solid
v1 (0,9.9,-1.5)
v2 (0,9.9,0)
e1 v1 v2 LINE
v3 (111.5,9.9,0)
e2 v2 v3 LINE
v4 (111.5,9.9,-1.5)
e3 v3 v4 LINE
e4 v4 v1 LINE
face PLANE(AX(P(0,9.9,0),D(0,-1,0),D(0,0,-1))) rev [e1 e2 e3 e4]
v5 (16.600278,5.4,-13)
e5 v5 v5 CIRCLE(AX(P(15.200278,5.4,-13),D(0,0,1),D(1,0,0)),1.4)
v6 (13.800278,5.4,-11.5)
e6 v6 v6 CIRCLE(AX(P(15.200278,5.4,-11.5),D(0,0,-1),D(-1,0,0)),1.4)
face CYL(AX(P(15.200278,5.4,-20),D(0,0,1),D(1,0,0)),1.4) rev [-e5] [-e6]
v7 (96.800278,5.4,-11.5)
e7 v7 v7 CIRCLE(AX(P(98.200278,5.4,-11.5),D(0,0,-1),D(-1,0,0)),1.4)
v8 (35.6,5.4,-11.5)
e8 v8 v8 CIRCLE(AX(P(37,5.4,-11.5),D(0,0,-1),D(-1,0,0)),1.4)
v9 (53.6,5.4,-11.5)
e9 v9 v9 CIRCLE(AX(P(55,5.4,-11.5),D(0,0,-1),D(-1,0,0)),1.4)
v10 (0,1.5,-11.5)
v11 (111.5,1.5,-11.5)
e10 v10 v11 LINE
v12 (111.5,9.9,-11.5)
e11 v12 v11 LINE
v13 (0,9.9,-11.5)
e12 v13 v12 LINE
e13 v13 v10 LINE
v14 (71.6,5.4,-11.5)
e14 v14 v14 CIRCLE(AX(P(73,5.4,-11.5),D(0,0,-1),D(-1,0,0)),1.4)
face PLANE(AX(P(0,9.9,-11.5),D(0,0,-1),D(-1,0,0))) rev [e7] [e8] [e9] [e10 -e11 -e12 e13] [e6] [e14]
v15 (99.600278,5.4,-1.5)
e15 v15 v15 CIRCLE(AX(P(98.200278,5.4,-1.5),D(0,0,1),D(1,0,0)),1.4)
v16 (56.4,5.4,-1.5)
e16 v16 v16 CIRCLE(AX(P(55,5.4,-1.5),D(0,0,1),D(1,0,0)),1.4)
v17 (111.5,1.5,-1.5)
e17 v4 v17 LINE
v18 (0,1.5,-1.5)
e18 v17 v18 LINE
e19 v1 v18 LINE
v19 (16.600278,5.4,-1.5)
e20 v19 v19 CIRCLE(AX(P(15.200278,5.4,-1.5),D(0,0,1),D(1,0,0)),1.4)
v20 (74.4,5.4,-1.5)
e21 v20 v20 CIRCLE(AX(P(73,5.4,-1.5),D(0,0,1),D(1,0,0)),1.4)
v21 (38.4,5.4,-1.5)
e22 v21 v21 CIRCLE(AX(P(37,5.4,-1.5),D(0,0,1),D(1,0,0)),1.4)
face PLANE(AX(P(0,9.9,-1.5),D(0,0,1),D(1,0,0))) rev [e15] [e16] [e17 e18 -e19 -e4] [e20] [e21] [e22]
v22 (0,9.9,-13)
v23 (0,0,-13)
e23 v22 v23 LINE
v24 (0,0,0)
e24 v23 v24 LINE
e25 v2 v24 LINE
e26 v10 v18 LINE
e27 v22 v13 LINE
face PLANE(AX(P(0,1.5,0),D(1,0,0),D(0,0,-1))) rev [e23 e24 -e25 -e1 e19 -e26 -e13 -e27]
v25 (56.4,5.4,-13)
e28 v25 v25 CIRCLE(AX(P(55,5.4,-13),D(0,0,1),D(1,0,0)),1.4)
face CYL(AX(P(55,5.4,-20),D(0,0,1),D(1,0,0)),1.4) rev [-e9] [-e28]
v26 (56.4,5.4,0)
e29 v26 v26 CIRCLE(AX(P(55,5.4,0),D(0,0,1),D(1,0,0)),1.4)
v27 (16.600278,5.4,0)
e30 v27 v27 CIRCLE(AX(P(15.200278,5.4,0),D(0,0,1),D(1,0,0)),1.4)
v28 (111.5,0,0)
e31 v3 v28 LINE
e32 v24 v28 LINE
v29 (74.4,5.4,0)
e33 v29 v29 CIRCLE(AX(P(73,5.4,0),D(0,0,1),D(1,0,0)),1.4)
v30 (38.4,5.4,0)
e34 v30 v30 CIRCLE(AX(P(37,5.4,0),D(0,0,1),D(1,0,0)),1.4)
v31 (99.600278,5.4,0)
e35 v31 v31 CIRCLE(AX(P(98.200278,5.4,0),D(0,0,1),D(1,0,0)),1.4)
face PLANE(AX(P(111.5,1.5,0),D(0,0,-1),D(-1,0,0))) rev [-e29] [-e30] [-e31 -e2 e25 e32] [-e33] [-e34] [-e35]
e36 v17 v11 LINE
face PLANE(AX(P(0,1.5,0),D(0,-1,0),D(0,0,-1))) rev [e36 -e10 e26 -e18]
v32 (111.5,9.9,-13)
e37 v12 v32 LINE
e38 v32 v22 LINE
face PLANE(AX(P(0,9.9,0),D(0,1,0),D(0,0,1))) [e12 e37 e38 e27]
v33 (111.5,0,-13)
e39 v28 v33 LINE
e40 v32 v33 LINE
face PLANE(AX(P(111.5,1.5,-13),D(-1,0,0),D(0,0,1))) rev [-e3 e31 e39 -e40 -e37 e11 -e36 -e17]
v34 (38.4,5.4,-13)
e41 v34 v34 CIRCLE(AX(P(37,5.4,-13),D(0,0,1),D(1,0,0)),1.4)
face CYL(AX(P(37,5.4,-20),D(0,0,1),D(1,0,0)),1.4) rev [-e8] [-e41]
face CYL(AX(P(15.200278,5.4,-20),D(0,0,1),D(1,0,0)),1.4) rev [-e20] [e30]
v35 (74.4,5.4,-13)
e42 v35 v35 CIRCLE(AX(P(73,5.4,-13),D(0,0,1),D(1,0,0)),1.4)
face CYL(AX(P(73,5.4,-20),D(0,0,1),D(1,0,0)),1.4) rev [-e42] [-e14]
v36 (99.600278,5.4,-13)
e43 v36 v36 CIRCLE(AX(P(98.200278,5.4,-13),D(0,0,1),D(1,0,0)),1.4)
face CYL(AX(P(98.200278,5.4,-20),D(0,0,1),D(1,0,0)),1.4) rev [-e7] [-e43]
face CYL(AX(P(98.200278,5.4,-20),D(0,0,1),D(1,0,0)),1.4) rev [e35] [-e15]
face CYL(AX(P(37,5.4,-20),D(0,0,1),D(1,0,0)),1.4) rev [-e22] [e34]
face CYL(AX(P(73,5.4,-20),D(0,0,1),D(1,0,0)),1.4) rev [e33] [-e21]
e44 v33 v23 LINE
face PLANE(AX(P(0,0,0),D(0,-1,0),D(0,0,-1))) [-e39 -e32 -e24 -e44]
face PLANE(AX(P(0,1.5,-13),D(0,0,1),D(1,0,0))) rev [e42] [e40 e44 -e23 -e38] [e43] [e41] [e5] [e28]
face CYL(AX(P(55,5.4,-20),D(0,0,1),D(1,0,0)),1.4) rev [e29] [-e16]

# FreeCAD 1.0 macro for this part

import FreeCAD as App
import Part
import Sketcher

doc = App.newDocument("Part")
params = doc.addObject("Spreadsheet::Sheet", "Params")
for row, (alias, value) in enumerate([
    ("sketch1_height", "13 mm"),
    ("sketch1_width", "111.5 mm"),
    ("pad1_length", "1.5 mm"),
    ("sketch2_width", "111.5 mm"),
    ("sketch2_height", "1.5 mm"),
    ("pad2_length", "8.4 mm"),
    ("sketch3_diameter", "2.8 mm"),
    ("pocket1_length", "20 mm"),
], start=1):
    params.set(f"A{row}", alias)
    params.set(f"B{row}", "=" + value)
    params.setAlias(f"B{row}", alias)

body = doc.addObject("PartDesign::Body", "Body")

sketch1 = doc.addObject("Sketcher::SketchObject", "Sketch")
body.addObject(sketch1)
sketch1.AttachmentSupport = (doc.XZ_Plane, [""])
sketch1.MapMode = "FlatFace"
sketch1.addGeometry([
    Part.LineSegment(App.Vector(0, -13, 0), App.Vector(0, 0, 0)),
    Part.LineSegment(App.Vector(0, 0, 0), App.Vector(112, 0, 0)),
    Part.LineSegment(App.Vector(112, 0, 0), App.Vector(112, -13, 0)),
    Part.LineSegment(App.Vector(112, -13, 0), App.Vector(0, -13, 0)),
], False)
sketch1.addConstraint([
    Sketcher.Constraint("Coincident", 0, 2, 1, 1),
    Sketcher.Constraint("Coincident", 1, 2, 2, 1),
    Sketcher.Constraint("Coincident", 2, 2, 3, 1),
    Sketcher.Constraint("Coincident", 3, 2, 0, 1),
    Sketcher.Constraint("Vertical", 0),
    Sketcher.Constraint("Horizontal", 1),
    Sketcher.Constraint("Vertical", 2),
    Sketcher.Constraint("Horizontal", 3),
    Sketcher.Constraint("Coincident", 0, 2, -1, 1),
    Sketcher.Constraint("DistanceY", 0, 1, 0, 2, 13.0),
    Sketcher.Constraint("DistanceX", 1, 1, 1, 2, 111.5),
])
sketch1.setExpression("Constraints[9]", "Params.sketch1_height")
sketch1.setExpression("Constraints[10]", "Params.sketch1_width")
pad1 = doc.addObject("PartDesign::Pad", "Pad")
body.addObject(pad1)
pad1.Profile = sketch1
pad1.setExpression("Length", "Params.pad1_length")
pad1.Reversed = True

sketch2 = doc.addObject("Sketcher::SketchObject", "Sketch001")
body.addObject(sketch2)
sketch2.AttachmentSupport = (doc.XZ_Plane, [""])
sketch2.MapMode = "FlatFace"
sketch2.AttachmentOffset = App.Placement(App.Vector(0, 0, -1.5), App.Rotation())
sketch2.addGeometry([
    Part.LineSegment(App.Vector(0, -13, 0), App.Vector(0, -11.5, 0)),
    Part.LineSegment(App.Vector(0, -11.5, 0), App.Vector(111.5, -11.5, 0)),
    Part.LineSegment(App.Vector(111.5, -11.5, 0), App.Vector(111.5, -13, 0)),
    Part.LineSegment(App.Vector(111.5, -13, 0), App.Vector(0, -13, 0)),
    Part.LineSegment(App.Vector(0, -1.5, 0), App.Vector(0, 0, 0)),
    Part.LineSegment(App.Vector(0, 0, 0), App.Vector(111.5, 0, 0)),
    Part.LineSegment(App.Vector(111.5, 0, 0), App.Vector(111.5, -1.5, 0)),
    Part.LineSegment(App.Vector(111.5, -1.5, 0), App.Vector(0, -1.5, 0)),
], False)
sketch2.addConstraint([
    Sketcher.Constraint("Coincident", 0, 2, 1, 1),
    Sketcher.Constraint("Coincident", 1, 2, 2, 1),
    Sketcher.Constraint("Coincident", 2, 2, 3, 1),
    Sketcher.Constraint("Coincident", 3, 2, 0, 1),
    Sketcher.Constraint("Coincident", 4, 2, 5, 1),
    Sketcher.Constraint("Coincident", 5, 2, 6, 1),
    Sketcher.Constraint("Coincident", 6, 2, 7, 1),
    Sketcher.Constraint("Coincident", 7, 2, 4, 1),
    Sketcher.Constraint("Vertical", 0),
    Sketcher.Constraint("Horizontal", 1),
    Sketcher.Constraint("Vertical", 2),
    Sketcher.Constraint("Horizontal", 3),
    Sketcher.Constraint("Vertical", 4),
    Sketcher.Constraint("Horizontal", 5),
    Sketcher.Constraint("Vertical", 6),
    Sketcher.Constraint("Horizontal", 7),
    Sketcher.Constraint("Coincident", 4, 2, -1, 1),
    Sketcher.Constraint("PointOnObject", 0, 2, -2),
    Sketcher.Constraint("Vertical", 2, 2, 5, 2),
    Sketcher.Constraint("Equal", 2, 4),
    Sketcher.Constraint("DistanceX", 1, 1, 1, 2, 111.5),
    Sketcher.Constraint("DistanceY", 0, 1, 0, 2, 1.5),
    Sketcher.Constraint("DistanceY", 2, 2, -1, 1, 13.0),
])
sketch2.setExpression("Constraints[20]", "Params.sketch2_width")
sketch2.setExpression("Constraints[21]", "Params.sketch2_height")
pad2 = doc.addObject("PartDesign::Pad", "Pad001")
body.addObject(pad2)
pad2.Profile = sketch2
pad2.setExpression("Length", "Params.pad2_length")
pad2.Reversed = True

sketch3 = doc.addObject("Sketcher::SketchObject", "Sketch002")
body.addObject(sketch3)
sketch3.AttachmentSupport = (doc.XY_Plane, [""])
sketch3.MapMode = "FlatFace"
sketch3.addGeometry([
    Part.Circle(App.Vector(37, 5.4, 0), App.Vector(0, 0, 1), 1.4),
    Part.Circle(App.Vector(55, 5.4, 0), App.Vector(0, 0, 1), 1.4),
    Part.Circle(App.Vector(73, 5.4, 0), App.Vector(0, 0, 1), 1.4),
    Part.Circle(App.Vector(15.2, 5.4, 0), App.Vector(0, 0, 1), 1.4),
    Part.Circle(App.Vector(98.2, 5.4, 0), App.Vector(0, 0, 1), 1.4),
], False)
sketch3.addConstraint([
    Sketcher.Constraint("Equal", 0, 1),
    Sketcher.Constraint("Equal", 1, 2),
    Sketcher.Constraint("Equal", 2, 3),
    Sketcher.Constraint("Equal", 3, 4),
    Sketcher.Constraint("Horizontal", 0, 3, 1, 3),
    Sketcher.Constraint("Horizontal", 1, 3, 2, 3),
    Sketcher.Constraint("Horizontal", 2, 3, 3, 3),
    Sketcher.Constraint("Horizontal", 3, 3, 4, 3),
    Sketcher.Constraint("Diameter", 0, 2.8),
    Sketcher.Constraint("DistanceX", -1, 1, 0, 3, 37.0),
    Sketcher.Constraint("DistanceX", -1, 1, 1, 3, 55.0),
    Sketcher.Constraint("DistanceX", -1, 1, 2, 3, 73.0),
    Sketcher.Constraint("DistanceX", 3, 3, 4, 3, 83.0),
    Sketcher.Constraint("DistanceY", -1, 1, 0, 3, 5.4),
    Sketcher.Constraint("DistanceX", -1, 1, 3, 3, 15.200278),
])
sketch3.setExpression("Constraints[8]", "Params.sketch3_diameter")
pocket1 = doc.addObject("PartDesign::Pocket", "Pocket")
body.addObject(pocket1)
pocket1.Profile = sketch3
pocket1.setExpression("Length", "Params.pocket1_length")

doc.recompute()
